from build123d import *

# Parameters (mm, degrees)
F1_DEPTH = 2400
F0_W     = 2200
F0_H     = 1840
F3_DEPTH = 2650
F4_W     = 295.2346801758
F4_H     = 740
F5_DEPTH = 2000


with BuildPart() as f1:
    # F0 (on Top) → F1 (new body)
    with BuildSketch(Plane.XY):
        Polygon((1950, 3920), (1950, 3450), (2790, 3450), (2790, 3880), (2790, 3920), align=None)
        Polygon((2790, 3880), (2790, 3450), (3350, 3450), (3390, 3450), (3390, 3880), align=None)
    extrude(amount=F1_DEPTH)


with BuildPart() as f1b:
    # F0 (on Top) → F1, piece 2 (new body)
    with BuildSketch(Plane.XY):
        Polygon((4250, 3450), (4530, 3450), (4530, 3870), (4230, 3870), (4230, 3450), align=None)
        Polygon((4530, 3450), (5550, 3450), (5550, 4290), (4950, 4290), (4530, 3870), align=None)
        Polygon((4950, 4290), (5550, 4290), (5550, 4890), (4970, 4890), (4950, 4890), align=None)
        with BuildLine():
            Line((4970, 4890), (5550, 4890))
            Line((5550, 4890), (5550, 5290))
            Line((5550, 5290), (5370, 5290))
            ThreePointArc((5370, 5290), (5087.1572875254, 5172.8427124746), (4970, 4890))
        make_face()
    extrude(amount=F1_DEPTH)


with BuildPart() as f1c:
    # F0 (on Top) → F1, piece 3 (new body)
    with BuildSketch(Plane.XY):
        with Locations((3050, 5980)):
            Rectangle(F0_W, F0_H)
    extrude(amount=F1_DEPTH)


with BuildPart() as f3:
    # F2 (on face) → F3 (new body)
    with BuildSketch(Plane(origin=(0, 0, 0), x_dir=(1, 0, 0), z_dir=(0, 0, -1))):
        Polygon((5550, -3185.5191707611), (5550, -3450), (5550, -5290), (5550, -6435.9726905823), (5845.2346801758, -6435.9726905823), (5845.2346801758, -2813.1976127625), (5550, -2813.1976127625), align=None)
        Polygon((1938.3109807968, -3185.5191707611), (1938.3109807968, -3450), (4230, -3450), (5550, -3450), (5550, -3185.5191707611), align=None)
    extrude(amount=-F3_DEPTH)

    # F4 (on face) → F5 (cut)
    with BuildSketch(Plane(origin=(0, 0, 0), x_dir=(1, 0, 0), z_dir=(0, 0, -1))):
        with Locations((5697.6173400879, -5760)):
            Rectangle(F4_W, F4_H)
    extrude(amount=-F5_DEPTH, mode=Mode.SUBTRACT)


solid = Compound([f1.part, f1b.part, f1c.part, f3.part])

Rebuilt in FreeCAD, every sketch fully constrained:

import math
import FreeCAD as App
import Part
import Sketcher
Q = App.Units.Quantity


def add_polygon(sketch, points):
    """Adds a closed chain of lines whose ends are joined by coincident constraints."""
    first, n = sketch.GeometryCount, len(points)
    for a, b in zip(points, points[1:] + points[:1]):
        sketch.addGeometry(Part.LineSegment(App.Vector(*a, 0), App.Vector(*b, 0)), False)
    for i in range(n):
        sketch.addConstraint(Sketcher.Constraint("Coincident", first + i, 2, first + (i + 1) % n, 1))

doc = App.newDocument("Part")
params = doc.addObject("Spreadsheet::Sheet", "Params")
for row, (alias, value) in enumerate([
    ("sketch1_width", "1440 mm"),
    ("sketch1_width2", "600 mm"),
    ("sketch1_height", "470 mm"),
    ("sketch1_height2", "430 mm"),
    ("pad1_length", "2400 mm"),
    ("sketch2_radius", "400 mm"),
    ("sketch2_width", "300 mm"),
    ("sketch2_width2", "1320 mm"),
    ("sketch2_width3", "180 mm"),
    ("sketch2_width4", "20 mm"),
    ("pad2_length", "2400 mm"),
    ("sketch3_width", "2200 mm"),
    ("sketch3_height", "1840 mm"),
    ("pad3_length", "2400 mm"),
    ("pad4_length", "2650 mm"),
    ("sketch5_height", "740 mm"),
    ("pocket1_length", "2000 mm"),
], start=1):
    params.set(f"A{row}", alias)
    params.set(f"B{row}", "=" + value)
    params.setAlias(f"B{row}", alias)

body = doc.addObject("PartDesign::Body", "Body")

# Sketch on XY plane
sketch1 = body.newObject("Sketcher::SketchObject", "Sketch")
sketch1.AttachmentSupport = (doc.getObject("XY_Plane"), [""])
sketch1.MapMode = "FlatFace"
add_polygon(sketch1, [(1950, 3920), (1950, 3450), (3390, 3450), (3390, 3880), (2790, 3880), (2790, 3920)])  # lines 0-5
sketch1.addConstraint(Sketcher.Constraint("Vertical", 0))
sketch1.addConstraint(Sketcher.Constraint("Horizontal", 1))
sketch1.addConstraint(Sketcher.Constraint("Vertical", 2))
sketch1.addConstraint(Sketcher.Constraint("Horizontal", 3))
sketch1.addConstraint(Sketcher.Constraint("Vertical", 4))
sketch1.addConstraint(Sketcher.Constraint("Horizontal", 5))
sketch1.addConstraint(Sketcher.Constraint("DistanceX", 1, 1, 1, 2, Q("1440 mm")))
sketch1.addConstraint(Sketcher.Constraint("DistanceX", 3, 2, 3, 1, Q("600 mm")))
sketch1.addConstraint(Sketcher.Constraint("DistanceY", 0, 2, 0, 1, Q("470 mm")))
sketch1.addConstraint(Sketcher.Constraint("DistanceY", 2, 1, 2, 2, Q("430 mm")))
sketch1.addConstraint(Sketcher.Constraint("DistanceX", -1, 1, 0, 2, Q("1950 mm")))
sketch1.addConstraint(Sketcher.Constraint("DistanceY", -1, 1, 0, 2, Q("3450 mm")))
sketch1.setExpression("Constraints[12]", "Params.sketch1_width")
sketch1.setExpression("Constraints[13]", "Params.sketch1_width2")
sketch1.setExpression("Constraints[14]", "Params.sketch1_height")
sketch1.setExpression("Constraints[15]", "Params.sketch1_height2")
pad1 = body.newObject("PartDesign::Pad", "Pad")
pad1.Profile = sketch1
pad1.setExpression("Length", "Params.pad1_length")
body2 = doc.addObject("PartDesign::Body", "Body001")

# Sketch on XY plane
sketch2 = body2.newObject("Sketcher::SketchObject", "Sketch001")
sketch2.AttachmentSupport = (doc.getObject("XY_Plane001"), [""])
sketch2.MapMode = "FlatFace"
sketch2.addGeometry(Part.LineSegment(App.Vector(4530, 3870, 0), App.Vector(4230, 3870, 0)), False)
sketch2.addGeometry(Part.LineSegment(App.Vector(4230, 3870, 0), App.Vector(4230, 3450, 0)), False)
sketch2.addGeometry(Part.LineSegment(App.Vector(4230, 3450, 0), App.Vector(5550, 3450, 0)), False)
sketch2.addGeometry(Part.LineSegment(App.Vector(5550, 3450, 0), App.Vector(5550, 5290, 0)), False)
sketch2.addGeometry(Part.LineSegment(App.Vector(5550, 5290, 0), App.Vector(5370, 5290, 0)), False)
sketch2.addGeometry(Part.ArcOfCircle(Part.Circle(App.Vector(5370, 4890, 0), App.Vector(0, 0, 1), 400), math.radians(90), math.radians(180)), False)
sketch2.addGeometry(Part.LineSegment(App.Vector(4970, 4890, 0), App.Vector(4950, 4890, 0)), False)
sketch2.addGeometry(Part.LineSegment(App.Vector(4950, 4890, 0), App.Vector(4950, 4290, 0)), False)
sketch2.addGeometry(Part.LineSegment(App.Vector(4950, 4290, 0), App.Vector(4530, 3870, 0)), False)
sketch2.addConstraint(Sketcher.Constraint("Coincident", 0, 2, 1, 1))
sketch2.addConstraint(Sketcher.Constraint("Coincident", 1, 2, 2, 1))
sketch2.addConstraint(Sketcher.Constraint("Coincident", 2, 2, 3, 1))
sketch2.addConstraint(Sketcher.Constraint("Coincident", 3, 2, 4, 1))
sketch2.addConstraint(Sketcher.Constraint("Tangent", 4, 2, 5, 1))
sketch2.addConstraint(Sketcher.Constraint("Coincident", 5, 2, 6, 1))
sketch2.addConstraint(Sketcher.Constraint("Coincident", 6, 2, 7, 1))
sketch2.addConstraint(Sketcher.Constraint("Coincident", 7, 2, 8, 1))
sketch2.addConstraint(Sketcher.Constraint("Coincident", 8, 2, 0, 1))
sketch2.addConstraint(Sketcher.Constraint("Horizontal", 0))
sketch2.addConstraint(Sketcher.Constraint("Vertical", 1))
sketch2.addConstraint(Sketcher.Constraint("Horizontal", 2))
sketch2.addConstraint(Sketcher.Constraint("Vertical", 3))
sketch2.addConstraint(Sketcher.Constraint("Horizontal", 4))
sketch2.addConstraint(Sketcher.Constraint("Horizontal", 6))
sketch2.addConstraint(Sketcher.Constraint("Vertical", 7))
sketch2.addConstraint(Sketcher.Constraint("Radius", 5, Q("400 mm")))
sketch2.addConstraint(Sketcher.Constraint("DistanceX", 0, 2, 0, 1, Q("300 mm")))
sketch2.addConstraint(Sketcher.Constraint("DistanceX", 2, 1, 2, 2, Q("1320 mm")))
sketch2.addConstraint(Sketcher.Constraint("DistanceX", 4, 2, 4, 1, Q("180 mm")))
sketch2.addConstraint(Sketcher.Constraint("DistanceX", 6, 2, 6, 1, Q("20 mm")))
sketch2.addConstraint(Sketcher.Constraint("DistanceY", 1, 2, 1, 1, Q("420 mm")))
sketch2.addConstraint(Sketcher.Constraint("DistanceY", 3, 1, 3, 2, Q("1840 mm")))
sketch2.addConstraint(Sketcher.Constraint("DistanceY", 7, 2, 7, 1, Q("600 mm")))
sketch2.addConstraint(Sketcher.Constraint("Angle", 8, Q("-135 deg")))
sketch2.addConstraint(Sketcher.Constraint("DistanceX", -1, 1, 5, 3, Q("5370 mm")))
sketch2.addConstraint(Sketcher.Constraint("DistanceY", -1, 1, 5, 3, Q("4890 mm")))
sketch2.setExpression("Constraints[16]", "Params.sketch2_radius")
sketch2.setExpression("Constraints[17]", "Params.sketch2_width")
sketch2.setExpression("Constraints[18]", "Params.sketch2_width2")
sketch2.setExpression("Constraints[19]", "Params.sketch2_width3")
sketch2.setExpression("Constraints[20]", "Params.sketch2_width4")
pad2 = body2.newObject("PartDesign::Pad", "Pad001")
pad2.Profile = sketch2
pad2.setExpression("Length", "Params.pad2_length")
body3 = doc.addObject("PartDesign::Body", "Body002")

# Sketch on XY plane
sketch3 = body3.newObject("Sketcher::SketchObject", "Sketch002")
sketch3.AttachmentSupport = (doc.getObject("XY_Plane002"), [""])
sketch3.MapMode = "FlatFace"
add_polygon(sketch3, [(1950, 6900), (1950, 5060), (4150, 5060), (4150, 6900)])  # lines 0-3
sketch3.addConstraint(Sketcher.Constraint("Vertical", 0))
sketch3.addConstraint(Sketcher.Constraint("Horizontal", 1))
sketch3.addConstraint(Sketcher.Constraint("Vertical", 2))
sketch3.addConstraint(Sketcher.Constraint("Horizontal", 3))
sketch3.addConstraint(Sketcher.Constraint("DistanceX", 1, 1, 1, 2, Q("2200 mm")))
sketch3.addConstraint(Sketcher.Constraint("DistanceY", 0, 2, 0, 1, Q("1840 mm")))
sketch3.addConstraint(Sketcher.Constraint("DistanceX", -1, 1, 0, 2, Q("1950 mm")))
sketch3.addConstraint(Sketcher.Constraint("DistanceY", -1, 1, 0, 2, Q("5060 mm")))
sketch3.setExpression("Constraints[8]", "Params.sketch3_width")
sketch3.setExpression("Constraints[9]", "Params.sketch3_height")
pad3 = body3.newObject("PartDesign::Pad", "Pad002")
pad3.Profile = sketch3
pad3.setExpression("Length", "Params.pad3_length")
body4 = doc.addObject("PartDesign::Body", "Body003")

# Sketch on XY plane
sketch4 = body4.newObject("Sketcher::SketchObject", "Sketch003")
sketch4.AttachmentSupport = (doc.getObject("XY_Plane003"), [""])
sketch4.MapMode = "FlatFace"
add_polygon(sketch4, [(5550, 6435.972691), (5845.23468, 6435.972691), (5845.23468, 2813.197613), (5550, 2813.197613), (5550, 3185.519171), (1938.310981, 3185.519171), (1938.310981, 3450), (5550, 3450)])  # lines 0-7
sketch4.addConstraint(Sketcher.Constraint("Horizontal", 0))
sketch4.addConstraint(Sketcher.Constraint("Vertical", 1))
sketch4.addConstraint(Sketcher.Constraint("Horizontal", 2))
sketch4.addConstraint(Sketcher.Constraint("Vertical", 3))
sketch4.addConstraint(Sketcher.Constraint("Horizontal", 4))
sketch4.addConstraint(Sketcher.Constraint("Vertical", 5))
sketch4.addConstraint(Sketcher.Constraint("Horizontal", 6))
sketch4.addConstraint(Sketcher.Constraint("Vertical", 7))
sketch4.addConstraint(Sketcher.Constraint("Vertical", 3, 2, 6, 2))
sketch4.addConstraint(Sketcher.Constraint("DistanceX", -1, 1, 2, 2, Q("5550 mm")))
sketch4.addConstraint(Sketcher.Constraint("DistanceY", -1, 1, 5, 2, Q("3450 mm")))
sketch4.addConstraint(Sketcher.Constraint("DistanceX", 0, 1, 0, 2, Q("295.23468 mm")))
sketch4.addConstraint(Sketcher.Constraint("DistanceX", 4, 2, 4, 1, Q("3611.689019 mm")))
sketch4.addConstraint(Sketcher.Constraint("DistanceY", 5, 1, 5, 2, Q("264.480829 mm")))
sketch4.addConstraint(Sketcher.Constraint("DistanceY", 7, 1, 7, 2, Q("2985.972691 mm")))
sketch4.addConstraint(Sketcher.Constraint("DistanceY", 1, 2, 1, 1, Q("3622.775078 mm")))
pad4 = body4.newObject("PartDesign::Pad", "Pad003")
pad4.Profile = sketch4
pad4.setExpression("Length", "Params.pad4_length")

# Sketch on XY plane
sketch5 = body4.newObject("Sketcher::SketchObject", "Sketch004")
sketch5.AttachmentSupport = (doc.getObject("XY_Plane003"), [""])
sketch5.MapMode = "FlatFace"
add_polygon(sketch5, [(5550, 5390), (5550, 6130), (5845.23468, 6130), (5845.23468, 5390)])  # lines 0-3
sketch5.addConstraint(Sketcher.Constraint("Vertical", 0))
sketch5.addConstraint(Sketcher.Constraint("Horizontal", 1))
sketch5.addConstraint(Sketcher.Constraint("Vertical", 2))
sketch5.addConstraint(Sketcher.Constraint("Horizontal", 3))
sketch5.addConstraint(Sketcher.Constraint("DistanceY", 0, 1, 0, 2, Q("740 mm")))
sketch5.addConstraint(Sketcher.Constraint("DistanceX", -1, 1, 0, 2, Q("5550 mm")))
sketch5.addConstraint(Sketcher.Constraint("DistanceY", -1, 1, 0, 2, Q("6130 mm")))
sketch5.addConstraint(Sketcher.Constraint("DistanceX", 1, 1, 1, 2, Q("295.23468 mm")))
sketch5.setExpression("Constraints[8]", "Params.sketch5_height")
pocket1 = body4.newObject("PartDesign::Pocket", "Pocket")
pocket1.Profile = sketch5
pocket1.setExpression("Length", "Params.pocket1_length")
pocket1.Reversed = True

doc.recompute()
